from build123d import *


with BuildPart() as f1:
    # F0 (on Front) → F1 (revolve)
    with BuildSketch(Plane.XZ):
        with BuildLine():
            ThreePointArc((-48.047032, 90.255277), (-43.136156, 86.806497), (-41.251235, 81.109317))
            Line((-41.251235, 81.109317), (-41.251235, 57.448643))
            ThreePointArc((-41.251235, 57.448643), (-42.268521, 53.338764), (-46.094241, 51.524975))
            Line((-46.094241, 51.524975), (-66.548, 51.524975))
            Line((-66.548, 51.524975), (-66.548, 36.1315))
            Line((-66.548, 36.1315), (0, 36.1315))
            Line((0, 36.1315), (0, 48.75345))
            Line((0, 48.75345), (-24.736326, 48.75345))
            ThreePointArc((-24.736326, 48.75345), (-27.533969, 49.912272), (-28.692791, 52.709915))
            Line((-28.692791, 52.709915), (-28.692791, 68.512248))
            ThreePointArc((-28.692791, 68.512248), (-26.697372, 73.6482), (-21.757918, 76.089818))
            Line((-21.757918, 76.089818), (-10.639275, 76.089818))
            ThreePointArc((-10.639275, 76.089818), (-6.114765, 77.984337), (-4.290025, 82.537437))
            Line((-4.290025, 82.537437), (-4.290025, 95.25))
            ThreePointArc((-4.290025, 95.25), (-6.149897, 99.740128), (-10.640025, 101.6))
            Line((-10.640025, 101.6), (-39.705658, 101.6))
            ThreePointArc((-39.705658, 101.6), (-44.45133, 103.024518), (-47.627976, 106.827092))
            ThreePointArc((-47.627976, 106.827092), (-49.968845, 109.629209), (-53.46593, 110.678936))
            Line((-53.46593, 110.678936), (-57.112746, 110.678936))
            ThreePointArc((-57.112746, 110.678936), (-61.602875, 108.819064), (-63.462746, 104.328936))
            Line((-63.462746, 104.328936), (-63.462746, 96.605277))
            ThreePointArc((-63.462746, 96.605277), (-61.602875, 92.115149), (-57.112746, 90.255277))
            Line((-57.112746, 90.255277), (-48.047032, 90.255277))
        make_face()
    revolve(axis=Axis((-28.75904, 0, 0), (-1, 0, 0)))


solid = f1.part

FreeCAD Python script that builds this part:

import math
import FreeCAD as App
import Part
import Sketcher
from FreeCAD import Vector
Q = App.Units.Quantity

doc = App.newDocument("Part")
body = doc.addObject("PartDesign::Body", "Body")

# Sketch on XZ plane
sketch1 = body.newObject("Sketcher::SketchObject", "Sketch")
sketch1.AttachmentSupport = (doc.getObject("XZ_Plane"), [""])
sketch1.MapMode = "FlatFace"
sketch1.addGeometry([
    Part.ArcOfCircle(Part.Circle(Vector(-50.8, 81.1, 0), Vector(0, 0, 1), 9.6), math.radians(0), math.radians(73)),  # 0
    Part.LineSegment(Vector(-41.3, 81.1, 0), Vector(-41.3, 57.4, 0)),  # 1
    Part.ArcOfCircle(Part.Circle(Vector(-46.1, 56.5, 0), Vector(0, 0, 1), 4.9), math.radians(-90), math.radians(11)),  # 2
    Part.LineSegment(Vector(-46.1, 51.5, 0), Vector(-66.5, 51.5, 0)),  # 3
    Part.LineSegment(Vector(-66.5, 51.5, 0), Vector(-66.5, 36.1, 0)),  # 4
    Part.LineSegment(Vector(-66.5, 36.1, 0), Vector(0, 36.1, 0)),  # 5
    Part.LineSegment(Vector(0, 36.1, 0), Vector(0, 48.8, 0)),  # 6
    Part.LineSegment(Vector(0, 48.8, 0), Vector(-24.7, 48.8, 0)),  # 7
    Part.ArcOfCircle(Part.Circle(Vector(-24.7, 52.7, 0), Vector(0, 0, 1), 4), math.radians(-180), math.radians(-90)),  # 8
    Part.LineSegment(Vector(-28.7, 52.7, 0), Vector(-28.7, 68.5, 0)),  # 9
    Part.ArcOfCircle(Part.Circle(Vector(-21.1, 68.5, 0), Vector(0, 0, 1), 7.6), math.radians(95), math.radians(180)),  # 10
    Part.LineSegment(Vector(-21.8, 76.1, 0), Vector(-10.6, 76.1, 0)),  # 11
    Part.ArcOfCircle(Part.Circle(Vector(-10.6, 82.4, 0), Vector(0, 0, 1), 6.4), math.radians(-90), math.radians(1)),  # 12
    Part.LineSegment(Vector(-4.3, 82.5, 0), Vector(-4.3, 95.2, 0)),  # 13
    Part.ArcOfCircle(Part.Circle(Vector(-10.6, 95.2, 0), Vector(0, 0, 1), 6.4), math.radians(0), math.radians(90)),  # 14
    Part.LineSegment(Vector(-10.6, 101.6, 0), Vector(-39.7, 101.6, 0)),  # 15
    Part.ArcOfCircle(Part.Circle(Vector(-39.7, 110.2, 0), Vector(0, 0, 1), 8.6), math.radians(-157), math.radians(-90)),  # 16
    Part.ArcOfCircle(Part.Circle(Vector(-53.5, 104.3, 0), Vector(0, 0, 1), 6.3), math.radians(23), math.radians(90)),  # 17
    Part.LineSegment(Vector(-53.5, 110.7, 0), Vector(-57.1, 110.7, 0)),  # 18
    Part.ArcOfCircle(Part.Circle(Vector(-57.1, 104.3, 0), Vector(0, 0, 1), 6.3), math.radians(90), math.radians(180)),  # 19
    Part.LineSegment(Vector(-63.5, 104.3, 0), Vector(-63.5, 96.6, 0)),  # 20
    Part.ArcOfCircle(Part.Circle(Vector(-57.1, 96.6, 0), Vector(0, 0, 1), 6.3), math.radians(180), math.radians(270)),  # 21
    Part.LineSegment(Vector(-57.1, 90.3, 0), Vector(-48, 90.3, 0)),  # 22
], False)
sketch1.addConstraint([
    Sketcher.Constraint("Tangent", 0, 1, 1, 1),
    Sketcher.Constraint("Coincident", 1, 2, 2, 2),
    Sketcher.Constraint("Tangent", 2, 1, 3, 1),
    Sketcher.Constraint("Coincident", 3, 2, 4, 1),
    Sketcher.Constraint("Coincident", 4, 2, 5, 1),
    Sketcher.Constraint("Coincident", 5, 2, 6, 1),
    Sketcher.Constraint("Coincident", 6, 2, 7, 1),
    Sketcher.Constraint("Tangent", 7, 2, 8, 2),
    Sketcher.Constraint("Tangent", 8, 1, 9, 1),
    Sketcher.Constraint("Tangent", 9, 2, 10, 2),
    Sketcher.Constraint("Coincident", 10, 1, 11, 1),
    Sketcher.Constraint("Tangent", 11, 2, 12, 1),
    Sketcher.Constraint("Coincident", 12, 2, 13, 1),
    Sketcher.Constraint("Tangent", 13, 2, 14, 1),
    Sketcher.Constraint("Tangent", 14, 2, 15, 1),
    Sketcher.Constraint("Tangent", 15, 2, 16, 2),
    Sketcher.Constraint("Tangent", 16, 1, 17, 1),
    Sketcher.Constraint("Tangent", 17, 2, 18, 1),
    Sketcher.Constraint("Tangent", 18, 2, 19, 1),
    Sketcher.Constraint("Tangent", 19, 2, 20, 1),
    Sketcher.Constraint("Tangent", 20, 2, 21, 1),
    Sketcher.Constraint("Tangent", 21, 2, 22, 1),
    Sketcher.Constraint("Coincident", 22, 2, 0, 2),
    Sketcher.Constraint("Vertical", 1),
    Sketcher.Constraint("Horizontal", 3),
    Sketcher.Constraint("Vertical", 4),
    Sketcher.Constraint("Horizontal", 5),
    Sketcher.Constraint("Vertical", 6),
    Sketcher.Constraint("Horizontal", 7),
    Sketcher.Constraint("Vertical", 9),
    Sketcher.Constraint("Horizontal", 11),
    Sketcher.Constraint("Vertical", 13),
    Sketcher.Constraint("Horizontal", 15),
    Sketcher.Constraint("Horizontal", 18),
    Sketcher.Constraint("Vertical", 20),
    Sketcher.Constraint("Horizontal", 22),
    Sketcher.Constraint("Equal", 12, 14),
    Sketcher.Constraint("Equal", 14, 17),
    Sketcher.Constraint("Equal", 17, 19),
    Sketcher.Constraint("Equal", 19, 21),
    Sketcher.Constraint("PointOnObject", 5, 2, -2),
    Sketcher.Constraint("Radius", 12, Q("0.25 in")),
    Sketcher.Constraint("DistanceY", -1, 1, 14, 2, Q("4 in")),
    Sketcher.Constraint("DistanceX", 5, 1, 5, 2, Q("2.62 in")),
    Sketcher.Constraint("Radius", 2, 4.941579),
    Sketcher.Constraint("DistanceY", -1, 1, 4, 2, Q("1.4225 in")),
    Sketcher.Constraint("Radius", 0, 9.552334),
    Sketcher.Constraint("Radius", 8, 3.956466),
    Sketcher.Constraint("Radius", 10, 7.607353),
    Sketcher.Constraint("Radius", 16, 8.617185),
    Sketcher.Constraint("DistanceX", 3, 2, 3, 1, 20.453759),
    Sketcher.Constraint("DistanceY", 6, 1, 6, 2, 12.62195),
    Sketcher.Constraint("DistanceY", 20, 2, 20, 1, 7.723659),
    Sketcher.Constraint("DistanceY", 8, 3, 0, 3, 28.399401),
    Sketcher.Constraint("DistanceY", 0, 3, 12, 3, 1.330502),
    Sketcher.Constraint("DistanceX", 8, 3, 14, 3, 14.0963),
    Sketcher.Constraint("DistanceX", 7, 2, 7, 1, 24.736326),
    Sketcher.Constraint("DistanceX", 11, 1, 11, 2, 11.118643),
    Sketcher.Constraint("DistanceX", 15, 2, 15, 1, 29.065633),
    Sketcher.Constraint("DistanceX", 18, 2, 18, 1, 3.646816),
    Sketcher.Constraint("DistanceX", 22, 1, 22, 2, 9.065714),
    Sketcher.Constraint("DistanceY", 1, 2, 1, 1, 23.660674),
    Sketcher.Constraint("DistanceY", 4, 2, 4, 1, 15.393475),
    Sketcher.Constraint("DistanceY", 13, 1, 13, 2, 12.712563),
])
revolution = body.newObject("PartDesign::Revolution", "Revolution")
revolution.Profile = sketch1
revolution.ReferenceAxis = (sketch1, ["H_Axis"])
revolution.Angle = 360

doc.recompute()
